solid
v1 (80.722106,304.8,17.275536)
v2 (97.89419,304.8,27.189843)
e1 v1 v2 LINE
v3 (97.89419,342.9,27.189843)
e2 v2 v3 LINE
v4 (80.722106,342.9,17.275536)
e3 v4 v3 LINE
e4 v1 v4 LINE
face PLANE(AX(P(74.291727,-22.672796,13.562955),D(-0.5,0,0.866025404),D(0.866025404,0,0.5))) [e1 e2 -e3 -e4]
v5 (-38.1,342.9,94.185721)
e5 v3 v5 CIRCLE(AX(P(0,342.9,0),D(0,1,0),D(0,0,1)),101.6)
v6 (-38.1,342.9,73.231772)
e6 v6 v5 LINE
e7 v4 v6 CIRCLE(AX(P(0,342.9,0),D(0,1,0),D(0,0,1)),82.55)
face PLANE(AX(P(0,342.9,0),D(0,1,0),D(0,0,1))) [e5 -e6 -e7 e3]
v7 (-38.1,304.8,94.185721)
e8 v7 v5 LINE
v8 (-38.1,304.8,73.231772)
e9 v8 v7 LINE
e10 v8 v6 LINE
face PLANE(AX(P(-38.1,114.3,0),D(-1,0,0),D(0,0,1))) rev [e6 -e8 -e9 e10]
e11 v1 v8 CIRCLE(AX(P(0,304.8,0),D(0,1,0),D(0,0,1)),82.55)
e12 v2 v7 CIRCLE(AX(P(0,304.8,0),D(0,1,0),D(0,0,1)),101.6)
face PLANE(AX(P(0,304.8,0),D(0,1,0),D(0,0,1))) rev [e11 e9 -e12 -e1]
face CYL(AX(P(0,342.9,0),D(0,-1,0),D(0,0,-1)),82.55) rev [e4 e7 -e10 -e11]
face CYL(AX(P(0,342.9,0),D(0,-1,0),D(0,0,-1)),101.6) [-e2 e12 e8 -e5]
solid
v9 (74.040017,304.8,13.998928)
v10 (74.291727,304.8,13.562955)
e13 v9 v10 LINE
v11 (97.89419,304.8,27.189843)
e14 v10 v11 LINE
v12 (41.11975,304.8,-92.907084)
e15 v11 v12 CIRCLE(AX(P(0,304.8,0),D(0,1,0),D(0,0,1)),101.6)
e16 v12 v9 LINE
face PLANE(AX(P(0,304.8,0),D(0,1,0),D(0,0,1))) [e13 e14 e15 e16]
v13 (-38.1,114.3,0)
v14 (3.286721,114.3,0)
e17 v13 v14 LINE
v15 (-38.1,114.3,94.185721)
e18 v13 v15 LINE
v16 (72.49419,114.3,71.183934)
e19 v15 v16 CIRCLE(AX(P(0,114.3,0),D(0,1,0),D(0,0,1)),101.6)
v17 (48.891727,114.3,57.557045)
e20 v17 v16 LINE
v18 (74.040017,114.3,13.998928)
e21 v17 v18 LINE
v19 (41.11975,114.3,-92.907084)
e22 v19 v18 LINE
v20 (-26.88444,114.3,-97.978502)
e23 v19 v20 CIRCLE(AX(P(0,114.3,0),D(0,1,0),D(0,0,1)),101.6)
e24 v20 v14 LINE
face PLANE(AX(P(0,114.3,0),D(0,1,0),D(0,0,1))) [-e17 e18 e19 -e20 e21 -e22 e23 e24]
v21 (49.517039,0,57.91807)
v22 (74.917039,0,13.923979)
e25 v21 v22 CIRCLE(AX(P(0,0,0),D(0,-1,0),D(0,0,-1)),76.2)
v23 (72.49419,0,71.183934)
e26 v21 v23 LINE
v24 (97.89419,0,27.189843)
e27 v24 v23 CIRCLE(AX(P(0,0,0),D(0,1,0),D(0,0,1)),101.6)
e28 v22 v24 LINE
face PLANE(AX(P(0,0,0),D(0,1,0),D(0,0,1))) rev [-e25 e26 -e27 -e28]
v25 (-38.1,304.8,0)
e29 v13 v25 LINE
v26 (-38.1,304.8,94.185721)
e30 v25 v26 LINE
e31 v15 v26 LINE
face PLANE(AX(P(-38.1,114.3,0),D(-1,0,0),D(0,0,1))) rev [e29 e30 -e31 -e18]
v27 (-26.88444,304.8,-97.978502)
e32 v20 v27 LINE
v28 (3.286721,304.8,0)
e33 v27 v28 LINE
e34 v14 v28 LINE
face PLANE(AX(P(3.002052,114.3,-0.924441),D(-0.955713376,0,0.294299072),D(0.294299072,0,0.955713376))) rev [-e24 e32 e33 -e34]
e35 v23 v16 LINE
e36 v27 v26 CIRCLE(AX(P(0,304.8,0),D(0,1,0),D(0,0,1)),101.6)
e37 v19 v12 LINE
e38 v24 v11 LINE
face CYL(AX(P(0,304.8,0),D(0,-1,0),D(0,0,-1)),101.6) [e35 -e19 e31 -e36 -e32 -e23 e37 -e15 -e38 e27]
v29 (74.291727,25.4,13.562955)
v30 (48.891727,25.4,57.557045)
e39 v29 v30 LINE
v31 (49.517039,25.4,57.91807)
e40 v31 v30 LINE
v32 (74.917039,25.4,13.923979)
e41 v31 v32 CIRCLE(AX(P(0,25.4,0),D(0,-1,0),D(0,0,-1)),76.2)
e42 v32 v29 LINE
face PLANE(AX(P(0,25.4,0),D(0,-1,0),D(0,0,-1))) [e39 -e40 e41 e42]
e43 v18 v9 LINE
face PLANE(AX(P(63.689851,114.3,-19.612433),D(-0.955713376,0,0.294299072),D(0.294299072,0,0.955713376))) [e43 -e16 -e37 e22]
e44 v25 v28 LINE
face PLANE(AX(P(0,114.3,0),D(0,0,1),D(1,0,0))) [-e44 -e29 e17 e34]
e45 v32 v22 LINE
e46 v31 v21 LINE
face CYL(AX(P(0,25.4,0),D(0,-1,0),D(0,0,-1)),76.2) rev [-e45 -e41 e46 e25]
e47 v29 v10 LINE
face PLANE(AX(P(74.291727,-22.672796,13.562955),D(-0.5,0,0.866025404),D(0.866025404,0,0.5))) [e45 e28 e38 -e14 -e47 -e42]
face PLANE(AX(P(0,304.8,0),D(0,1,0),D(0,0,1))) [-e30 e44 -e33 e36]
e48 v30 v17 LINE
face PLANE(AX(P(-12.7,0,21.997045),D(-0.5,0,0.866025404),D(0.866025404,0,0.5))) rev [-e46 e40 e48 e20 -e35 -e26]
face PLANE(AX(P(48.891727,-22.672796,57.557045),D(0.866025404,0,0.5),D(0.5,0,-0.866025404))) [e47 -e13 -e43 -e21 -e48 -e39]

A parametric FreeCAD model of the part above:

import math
import FreeCAD as App
import Part
import Sketcher

V = App.Vector
Q = App.Units.Quantity

doc = App.newDocument("Part")
body = doc.addObject("PartDesign::Body", "Body")

sketch1 = body.newObject("Sketcher::SketchObject", "Sketch")
sketch1.AttachmentSupport = (doc.getObject("XZ_Plane"), [""])
sketch1.MapMode = "FlatFace"
sketch1.addGeometry(Part.Circle(V(0, 0, 0), V(0, 0, 1), 102), False)
sketch1.addConstraint([
    Sketcher.Constraint("Coincident", 0, 3, -1, 1),
    Sketcher.Constraint("Diameter", 0, Q("8 in")),
])
pad1 = body.newObject("PartDesign::Pad", "Pad")
pad1.Profile = sketch1
pad1.Length = Q("12 in")
pad1.Reversed = True
body2 = doc.addObject("PartDesign::Body", "Body001")

sketch2 = body2.newObject("Sketcher::SketchObject", "Sketch001")
sketch2.AttachmentSupport = (doc.getObject("XZ_Plane001"), [""])
sketch2.MapMode = "FlatFace"
sketch2.AttachmentOffset = App.Placement(V(0, 0, -12 * 25.4), App.Rotation())
sketch2.addGeometry([
    Part.Circle(V(0, 0, 0), V(0, 0, 1), 102),
    Part.Circle(V(0, 0, 0), V(0, 0, 1), 83),
], False)
sketch2.addConstraint([
    Sketcher.Constraint("Coincident", 0, 3, -1, 1),
    Sketcher.Constraint("Coincident", 1, 3, -1, 1),
    Sketcher.Constraint("Diameter", 0, Q("8 in")),
    Sketcher.Constraint("Diameter", 1, Q("6.5 in")),
])
pad2 = body2.newObject("PartDesign::Pad", "Pad001")
pad2.Profile = sketch2
pad2.Length = Q("1.5 in")
pad2.Reversed = True
body3 = doc.addObject("PartDesign::Body", "Body002")

sketch3 = body3.newObject("Sketcher::SketchObject", "Sketch002")
sketch3.AttachmentSupport = (doc.getObject("XZ_Plane002"), [""])
sketch3.MapMode = "FlatFace"
sketch3.AttachmentOffset = App.Placement(V(0, 0, -13.5 * 25.4), App.Rotation())
sketch3.addGeometry([
    Part.LineSegment(V(-38, 0, 0), V(-38, 102, 0)),
    Part.LineSegment(V(-38, 102, 0), V(38, 102, 0)),
    Part.LineSegment(V(38, 102, 0), V(38, 0, 0)),
    Part.LineSegment(V(38, 0, 0), V(-38, 0, 0)),
], False)
sketch3.addConstraint([
    Sketcher.Constraint("Coincident", 0, 2, 1, 1),
    Sketcher.Constraint("Coincident", 1, 2, 2, 1),
    Sketcher.Constraint("Coincident", 2, 2, 3, 1),
    Sketcher.Constraint("Coincident", 3, 2, 0, 1),
    Sketcher.Constraint("Vertical", 0),
    Sketcher.Constraint("Horizontal", 1),
    Sketcher.Constraint("Vertical", 2),
    Sketcher.Constraint("Horizontal", 3),
    Sketcher.Constraint("Symmetric", 2, 2, 3, 2, -1, 1),
    Sketcher.Constraint("DistanceX", 1, 1, 1, 2, Q("3 in")),
    Sketcher.Constraint("DistanceY", 0, 1, 0, 2, Q("4 in")),
])
pad3 = body3.newObject("PartDesign::Pad", "Pad002")
pad3.Profile = sketch3
pad3.Length = Q("9 in")
doc.recompute()

body4 = doc.addObject("PartDesign::Body", "Body003")
body4.BaseFeature = body3
boolean = body.newObject("PartDesign::Boolean", "Boolean")
boolean.Type = "Cut"
boolean.addObjects([body4])
doc.recompute()

sketch4 = body.newObject("Sketcher::SketchObject", "Sketch003")
sketch4.AttachmentSupport = (doc.getObject("XZ_Plane"), [""])
sketch4.MapMode = "FlatFace"
sketch4.AttachmentOffset = App.Placement(V(0, 0, -4.5 * 25.4), App.Rotation())
sketch4.addGeometry([
    Part.ArcOfCircle(Part.Circle(V(0, 0, 0), V(0, 0, 1), 102), math.radians(32), math.radians(68)),
    Part.LineSegment(V(86, 54, 0), V(78, 27, 0)),
    Part.LineSegment(V(78, 27, 0), V(49, -66, 0)),
    Part.LineSegment(V(49, -66, 0), V(41, -93, 0)),
    Part.ArcOfCircle(Part.Circle(V(0, 0, 0), V(0, 0, 1), 102), math.radians(-105), math.radians(-66)),
    Part.LineSegment(V(-27, -98, 0), V(-21, -80, 0)),
    Part.LineSegment(V(-21, -80, 0), V(3, 0, 0)),
    Part.LineSegment(V(3, 0, 0), V(38, 0, 0)),
    Part.LineSegment(V(38, 0, 0), V(38, 94, 0)),
], False)
sketch4.addConstraint([
    Sketcher.Constraint("Coincident", 0, 1, 1, 1),
    Sketcher.Constraint("Coincident", 1, 2, 2, 1),
    Sketcher.Constraint("Coincident", 2, 2, 3, 1),
    Sketcher.Constraint("Coincident", 3, 2, 4, 2),
    Sketcher.Constraint("Coincident", 4, 1, 5, 1),
    Sketcher.Constraint("Coincident", 5, 2, 6, 1),
    Sketcher.Constraint("Coincident", 6, 2, 7, 1),
    Sketcher.Constraint("Coincident", 7, 2, 8, 1),
    Sketcher.Constraint("Coincident", 8, 2, 0, 2),
    Sketcher.Constraint("Horizontal", 7),
    Sketcher.Constraint("Vertical", 8),
    Sketcher.Constraint("Coincident", 0, 3, -1, 1),
    Sketcher.Constraint("Coincident", 4, 3, -1, 1),
    Sketcher.Constraint("Equal", 0, 4),
    Sketcher.Constraint("PointOnObject", 6, 2, -1),
    Sketcher.Constraint("Parallel", 1, 2),
    Sketcher.Constraint("Parallel", 2, 3),
    Sketcher.Constraint("Parallel", 3, 5),
    Sketcher.Constraint("Parallel", 5, 6),
    Sketcher.Constraint("Equal", 1, 3),
    Sketcher.Constraint("Radius", 0, Q("4 in")),
    Sketcher.Constraint("DistanceX", -1, 1, 7, 2, Q("1.5 in")),
    Sketcher.Constraint("DistanceX", 7, 1, 7, 2, 34.813279),
    Sketcher.Constraint("DistanceX", 4, 1, 5, 2, 5.609698),
    Sketcher.Constraint("Distance", 1, 27.972891),
    Sketcher.Constraint("DistanceY", -1, 1, 0, 1, 53.682219),
    Sketcher.Constraint("DistanceX", -1, 1, 3, 2, 41.11975),
])
pocket1 = body.newObject("PartDesign::Pocket", "Pocket")
pocket1.Profile = sketch4
pocket1.Length = Q("7.5 in")

sketch5 = body.newObject("Sketcher::SketchObject", "Sketch004")
sketch5.AttachmentSupport = (doc.getObject("XZ_Plane"), [""])
sketch5.MapMode = "FlatFace"
sketch5.addGeometry(Part.Circle(V(0, 0, 0), V(0, 0, 1), 76), False)
sketch5.addConstraint([
    Sketcher.Constraint("Coincident", 0, 3, -1, 1),
    Sketcher.Constraint("Diameter", 0, Q("6 in")),
])
pocket2 = body.newObject("PartDesign::Pocket", "Pocket001")
pocket2.Profile = sketch5
pocket2.Length = Q("1 in")
doc.recompute()

boolean2 = body2.newObject("PartDesign::Boolean", "Boolean001")
boolean2.Type = "Cut"
boolean2.addObjects([body3])
body5 = doc.addObject("PartDesign::Body", "Body004")

sketch6 = body5.newObject("Sketcher::SketchObject", "Sketch005")
sketch6.AttachmentSupport = (doc.getObject("XZ_Plane004"), [""])
sketch6.MapMode = "FlatFace"
sketch6.AttachmentOffset = App.Placement(V(0, 0, -4.5 * 25.4), App.Rotation())
sketch6.addGeometry([
    Part.LineSegment(V(74, 14, 0), V(49, 58, 0)),
    Part.LineSegment(V(49, 58, 0), V(36, 50, 0)),
    Part.LineSegment(V(36, 50, 0), V(14, 87, 0)),
    Part.LineSegment(V(14, 87, 0), V(60, 114, 0)),
    Part.LineSegment(V(60, 114, 0), V(107, 33, 0)),
    Part.LineSegment(V(107, 33, 0), V(74, 14, 0)),
], False)
sketch6.addConstraint([
    Sketcher.Constraint("Coincident", 0, 2, 1, 1),
    Sketcher.Constraint("Coincident", 1, 2, 2, 1),
    Sketcher.Constraint("Coincident", 2, 2, 3, 1),
    Sketcher.Constraint("Coincident", 3, 2, 4, 1),
    Sketcher.Constraint("Coincident", 4, 2, 5, 1),
    Sketcher.Constraint("Coincident", 5, 2, 0, 1),
    Sketcher.Constraint("Perpendicular", 0, 1),
    Sketcher.Constraint("Perpendicular", 1, 2),
    Sketcher.Constraint("Perpendicular", 2, 3),
    Sketcher.Constraint("Perpendicular", 3, 4),
    Sketcher.Constraint("Perpendicular", 4, 5),
    Sketcher.Constraint("Distance", 0, Q("2 in")),
    Sketcher.Constraint("Angle", 0, Q("120 deg")),
    Sketcher.Constraint("Distance", 2, Q("1.7 in")),
    Sketcher.Constraint("Distance", 5, Q("1.5 in")),
    Sketcher.Constraint("DistanceX", -1, 1, 1, 2, 35.745449),
    Sketcher.Constraint("DistanceY", -1, 1, 1, 2, 49.967039),
    Sketcher.Constraint("DistanceY", 0, 2, 2, 2, 29.80497),
])
pad4 = body5.newObject("PartDesign::Pad", "Pad003")
pad4.Profile = sketch6
pad4.Length = Q("9 in")
pad4.Reversed = True
doc.recompute()

body6 = doc.addObject("PartDesign::Body", "Body005")
body6.BaseFeature = body5
boolean3 = body.newObject("PartDesign::Boolean", "Boolean002")
boolean3.Type = "Cut"
boolean3.addObjects([body6])
doc.recompute()

sketch7 = body.newObject("Sketcher::SketchObject", "Sketch006")
sketch7.AttachmentSupport = (doc.getObject("XZ_Plane"), [""])
sketch7.MapMode = "FlatFace"
sketch7.AttachmentOffset = App.Placement(V(0, 0, -13.5 * 25.4), App.Rotation())
sketch7.addGeometry([
    Part.LineSegment(V(72, 71, 0), V(82, 77, 0)),
    Part.LineSegment(V(82, 77, 0), V(107, 33, 0)),
    Part.LineSegment(V(107, 33, 0), V(98, 27, 0)),
    Part.LineSegment(V(98, 27, 0), V(81, 17, 0)),
    Part.LineSegment(V(81, 17, 0), V(74, 14, 0)),
    Part.LineSegment(V(74, 14, 0), V(49, 58, 0)),
    Part.LineSegment(V(49, 58, 0), V(55, 61, 0)),
    Part.LineSegment(V(55, 61, 0), V(72, 71, 0)),
], False)
sketch7.addConstraint([
    Sketcher.Constraint("Coincident", 0, 2, 1, 1),
    Sketcher.Constraint("Coincident", 1, 2, 2, 1),
    Sketcher.Constraint("Coincident", 2, 2, 3, 1),
    Sketcher.Constraint("Coincident", 3, 2, 4, 1),
    Sketcher.Constraint("Coincident", 4, 2, 5, 1),
    Sketcher.Constraint("Coincident", 5, 2, 6, 1),
    Sketcher.Constraint("Coincident", 6, 2, 7, 1),
    Sketcher.Constraint("Coincident", 7, 2, 0, 1),
    Sketcher.Constraint("Perpendicular", 0, 1),
    Sketcher.Constraint("Perpendicular", 1, 2),
    Sketcher.Constraint("Parallel", 2, 3),
    Sketcher.Constraint("Parallel", 3, 4),
    Sketcher.Constraint("Perpendicular", 4, 5),
    Sketcher.Constraint("Perpendicular", 5, 6),
    Sketcher.Constraint("Parallel", 6, 7),
    Sketcher.Constraint("Equal", 0, 2),
    Sketcher.Constraint("Equal", 4, 6),
    Sketcher.Constraint("Distance", 1, Q("2 in")),
    Sketcher.Constraint("Angle", 0, Q("30 deg")),
    Sketcher.Constraint("DistanceY", 4, 2, 1, 2, Q("0.75 in")),
    Sketcher.Constraint("DistanceX", -1, 1, 2, 2, 97.89419),
    Sketcher.Constraint("DistanceY", 2, 2, 1, 2, 5.423112),
    Sketcher.Constraint("DistanceX", 3, 2, 1, 2, 26.565189),
    Sketcher.Constraint("DistanceY", -1, 1, 0, 2, 76.607045),
])
pocket3 = body.newObject("PartDesign::Pocket", "Pocket002")
pocket3.Profile = sketch7
pocket3.Type = "ThroughAll"
pocket3.Reversed = True
doc.recompute()

boolean4 = body2.newObject("PartDesign::Boolean", "Boolean003")
boolean4.Type = "Cut"
boolean4.addObjects([body5])

doc.recompute()
